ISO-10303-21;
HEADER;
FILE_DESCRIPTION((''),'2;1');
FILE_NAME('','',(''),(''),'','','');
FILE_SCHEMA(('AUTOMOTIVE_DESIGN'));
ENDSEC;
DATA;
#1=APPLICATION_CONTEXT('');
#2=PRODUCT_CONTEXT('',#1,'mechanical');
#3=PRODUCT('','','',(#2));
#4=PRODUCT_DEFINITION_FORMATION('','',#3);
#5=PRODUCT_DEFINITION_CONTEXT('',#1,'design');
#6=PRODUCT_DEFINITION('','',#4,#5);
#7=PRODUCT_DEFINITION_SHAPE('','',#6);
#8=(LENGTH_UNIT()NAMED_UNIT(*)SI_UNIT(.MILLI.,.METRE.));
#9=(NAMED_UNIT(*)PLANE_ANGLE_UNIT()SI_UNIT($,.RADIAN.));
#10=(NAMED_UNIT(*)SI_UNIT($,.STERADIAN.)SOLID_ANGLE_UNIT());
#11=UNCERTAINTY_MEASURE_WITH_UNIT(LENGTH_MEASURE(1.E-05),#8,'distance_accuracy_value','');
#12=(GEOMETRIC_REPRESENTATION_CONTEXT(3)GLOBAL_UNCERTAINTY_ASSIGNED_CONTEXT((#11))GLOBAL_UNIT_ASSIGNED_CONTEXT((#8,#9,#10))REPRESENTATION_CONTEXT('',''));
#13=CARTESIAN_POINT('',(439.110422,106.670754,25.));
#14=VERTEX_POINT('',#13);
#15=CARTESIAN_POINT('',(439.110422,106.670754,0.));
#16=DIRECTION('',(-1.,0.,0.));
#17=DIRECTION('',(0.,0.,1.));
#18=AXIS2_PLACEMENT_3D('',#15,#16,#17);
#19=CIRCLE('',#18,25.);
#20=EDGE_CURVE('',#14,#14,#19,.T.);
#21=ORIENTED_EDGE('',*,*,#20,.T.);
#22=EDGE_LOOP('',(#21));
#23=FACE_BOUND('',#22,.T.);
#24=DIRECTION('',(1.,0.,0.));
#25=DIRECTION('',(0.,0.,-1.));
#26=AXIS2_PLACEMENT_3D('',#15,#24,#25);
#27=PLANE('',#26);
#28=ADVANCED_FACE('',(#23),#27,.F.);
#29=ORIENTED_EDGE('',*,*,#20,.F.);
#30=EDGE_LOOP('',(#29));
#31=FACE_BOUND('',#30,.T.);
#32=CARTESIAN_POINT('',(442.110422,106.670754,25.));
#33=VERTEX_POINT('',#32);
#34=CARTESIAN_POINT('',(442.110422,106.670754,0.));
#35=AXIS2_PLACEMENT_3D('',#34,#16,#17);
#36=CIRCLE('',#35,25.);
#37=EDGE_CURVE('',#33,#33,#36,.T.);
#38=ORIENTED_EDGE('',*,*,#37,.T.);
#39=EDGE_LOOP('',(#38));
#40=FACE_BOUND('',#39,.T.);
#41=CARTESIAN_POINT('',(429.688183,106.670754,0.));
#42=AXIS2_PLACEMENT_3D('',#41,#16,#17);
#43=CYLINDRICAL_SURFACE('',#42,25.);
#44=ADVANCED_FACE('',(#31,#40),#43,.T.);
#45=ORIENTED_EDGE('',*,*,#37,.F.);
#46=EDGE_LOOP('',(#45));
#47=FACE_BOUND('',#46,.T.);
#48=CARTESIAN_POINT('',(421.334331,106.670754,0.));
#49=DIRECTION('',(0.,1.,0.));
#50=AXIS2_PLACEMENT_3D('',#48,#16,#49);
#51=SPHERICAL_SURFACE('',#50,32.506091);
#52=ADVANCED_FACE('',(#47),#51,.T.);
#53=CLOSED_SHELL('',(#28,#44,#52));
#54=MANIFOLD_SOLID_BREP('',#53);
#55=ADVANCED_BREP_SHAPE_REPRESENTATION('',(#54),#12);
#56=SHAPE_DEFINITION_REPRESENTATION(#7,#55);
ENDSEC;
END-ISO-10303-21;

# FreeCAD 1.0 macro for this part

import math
import FreeCAD as App
import Part
import Sketcher
Q = App.Units.Quantity

doc = App.newDocument("Part")
body = doc.addObject("PartDesign::Body", "Body")

sketch1 = doc.addObject("Sketcher::SketchObject", "Sketch")
body.addObject(sketch1)
sketch1.AttachmentSupport = (doc.XY_Plane, [""])
sketch1.MapMode = "FlatFace"
sketch1.addGeometry(Part.LineSegment(App.Vector(439.1, 131.7, 0), App.Vector(439.1, 106.7, 0)), False)
sketch1.addGeometry(Part.LineSegment(App.Vector(439.1, 106.7, 0), App.Vector(453.8, 106.7, 0)), False)
sketch1.addGeometry(Part.ArcOfCircle(Part.Circle(App.Vector(421.3, 106.7, 0), App.Vector(0, 0, 1), 32.5), math.radians(0), math.radians(50)), False)
sketch1.addGeometry(Part.LineSegment(App.Vector(442.1, 131.7, 0), App.Vector(439.1, 131.7, 0)), False)
sketch1.addGeometry(Part.LineSegment(App.Vector(421.3, 106.7, 0), App.Vector(453.8, 106.7, 0)), True)
sketch1.addConstraint(Sketcher.Constraint("Coincident", 0, 2, 1, 1))
sketch1.addConstraint(Sketcher.Constraint("Coincident", 1, 2, 2, 1))
sketch1.addConstraint(Sketcher.Constraint("Coincident", 2, 2, 3, 1))
sketch1.addConstraint(Sketcher.Constraint("Coincident", 3, 2, 0, 1))
sketch1.addConstraint(Sketcher.Constraint("Vertical", 0))
sketch1.addConstraint(Sketcher.Constraint("Horizontal", 1))
sketch1.addConstraint(Sketcher.Constraint("Horizontal", 3))
sketch1.addConstraint(Sketcher.Constraint("Horizontal", 4))
sketch1.addConstraint(Sketcher.Constraint("Coincident", 4, 1, 2, 3))
sketch1.addConstraint(Sketcher.Constraint("Coincident", 4, 2, 1, 2))
sketch1.addConstraint(Sketcher.Constraint("DistanceX", 3, 2, 3, 1, Q("3 mm")))
sketch1.addConstraint(Sketcher.Constraint("DistanceY", 0, 2, 0, 1, Q("25 mm")))
sketch1.addConstraint(Sketcher.Constraint("DistanceX", 1, 1, 1, 2, Q("14.73 mm")))
sketch1.addConstraint(Sketcher.Constraint("DistanceX", -1, 1, 2, 3, Q("421.334331 mm")))
sketch1.addConstraint(Sketcher.Constraint("DistanceY", -1, 1, 2, 3, Q("106.670754 mm")))
revolution = doc.addObject("PartDesign::Revolution", "Revolution")
body.addObject(revolution)
revolution.Profile = sketch1
revolution.ReferenceAxis = (sketch1, ["Axis0"])
revolution.Angle = 360

doc.recompute()
